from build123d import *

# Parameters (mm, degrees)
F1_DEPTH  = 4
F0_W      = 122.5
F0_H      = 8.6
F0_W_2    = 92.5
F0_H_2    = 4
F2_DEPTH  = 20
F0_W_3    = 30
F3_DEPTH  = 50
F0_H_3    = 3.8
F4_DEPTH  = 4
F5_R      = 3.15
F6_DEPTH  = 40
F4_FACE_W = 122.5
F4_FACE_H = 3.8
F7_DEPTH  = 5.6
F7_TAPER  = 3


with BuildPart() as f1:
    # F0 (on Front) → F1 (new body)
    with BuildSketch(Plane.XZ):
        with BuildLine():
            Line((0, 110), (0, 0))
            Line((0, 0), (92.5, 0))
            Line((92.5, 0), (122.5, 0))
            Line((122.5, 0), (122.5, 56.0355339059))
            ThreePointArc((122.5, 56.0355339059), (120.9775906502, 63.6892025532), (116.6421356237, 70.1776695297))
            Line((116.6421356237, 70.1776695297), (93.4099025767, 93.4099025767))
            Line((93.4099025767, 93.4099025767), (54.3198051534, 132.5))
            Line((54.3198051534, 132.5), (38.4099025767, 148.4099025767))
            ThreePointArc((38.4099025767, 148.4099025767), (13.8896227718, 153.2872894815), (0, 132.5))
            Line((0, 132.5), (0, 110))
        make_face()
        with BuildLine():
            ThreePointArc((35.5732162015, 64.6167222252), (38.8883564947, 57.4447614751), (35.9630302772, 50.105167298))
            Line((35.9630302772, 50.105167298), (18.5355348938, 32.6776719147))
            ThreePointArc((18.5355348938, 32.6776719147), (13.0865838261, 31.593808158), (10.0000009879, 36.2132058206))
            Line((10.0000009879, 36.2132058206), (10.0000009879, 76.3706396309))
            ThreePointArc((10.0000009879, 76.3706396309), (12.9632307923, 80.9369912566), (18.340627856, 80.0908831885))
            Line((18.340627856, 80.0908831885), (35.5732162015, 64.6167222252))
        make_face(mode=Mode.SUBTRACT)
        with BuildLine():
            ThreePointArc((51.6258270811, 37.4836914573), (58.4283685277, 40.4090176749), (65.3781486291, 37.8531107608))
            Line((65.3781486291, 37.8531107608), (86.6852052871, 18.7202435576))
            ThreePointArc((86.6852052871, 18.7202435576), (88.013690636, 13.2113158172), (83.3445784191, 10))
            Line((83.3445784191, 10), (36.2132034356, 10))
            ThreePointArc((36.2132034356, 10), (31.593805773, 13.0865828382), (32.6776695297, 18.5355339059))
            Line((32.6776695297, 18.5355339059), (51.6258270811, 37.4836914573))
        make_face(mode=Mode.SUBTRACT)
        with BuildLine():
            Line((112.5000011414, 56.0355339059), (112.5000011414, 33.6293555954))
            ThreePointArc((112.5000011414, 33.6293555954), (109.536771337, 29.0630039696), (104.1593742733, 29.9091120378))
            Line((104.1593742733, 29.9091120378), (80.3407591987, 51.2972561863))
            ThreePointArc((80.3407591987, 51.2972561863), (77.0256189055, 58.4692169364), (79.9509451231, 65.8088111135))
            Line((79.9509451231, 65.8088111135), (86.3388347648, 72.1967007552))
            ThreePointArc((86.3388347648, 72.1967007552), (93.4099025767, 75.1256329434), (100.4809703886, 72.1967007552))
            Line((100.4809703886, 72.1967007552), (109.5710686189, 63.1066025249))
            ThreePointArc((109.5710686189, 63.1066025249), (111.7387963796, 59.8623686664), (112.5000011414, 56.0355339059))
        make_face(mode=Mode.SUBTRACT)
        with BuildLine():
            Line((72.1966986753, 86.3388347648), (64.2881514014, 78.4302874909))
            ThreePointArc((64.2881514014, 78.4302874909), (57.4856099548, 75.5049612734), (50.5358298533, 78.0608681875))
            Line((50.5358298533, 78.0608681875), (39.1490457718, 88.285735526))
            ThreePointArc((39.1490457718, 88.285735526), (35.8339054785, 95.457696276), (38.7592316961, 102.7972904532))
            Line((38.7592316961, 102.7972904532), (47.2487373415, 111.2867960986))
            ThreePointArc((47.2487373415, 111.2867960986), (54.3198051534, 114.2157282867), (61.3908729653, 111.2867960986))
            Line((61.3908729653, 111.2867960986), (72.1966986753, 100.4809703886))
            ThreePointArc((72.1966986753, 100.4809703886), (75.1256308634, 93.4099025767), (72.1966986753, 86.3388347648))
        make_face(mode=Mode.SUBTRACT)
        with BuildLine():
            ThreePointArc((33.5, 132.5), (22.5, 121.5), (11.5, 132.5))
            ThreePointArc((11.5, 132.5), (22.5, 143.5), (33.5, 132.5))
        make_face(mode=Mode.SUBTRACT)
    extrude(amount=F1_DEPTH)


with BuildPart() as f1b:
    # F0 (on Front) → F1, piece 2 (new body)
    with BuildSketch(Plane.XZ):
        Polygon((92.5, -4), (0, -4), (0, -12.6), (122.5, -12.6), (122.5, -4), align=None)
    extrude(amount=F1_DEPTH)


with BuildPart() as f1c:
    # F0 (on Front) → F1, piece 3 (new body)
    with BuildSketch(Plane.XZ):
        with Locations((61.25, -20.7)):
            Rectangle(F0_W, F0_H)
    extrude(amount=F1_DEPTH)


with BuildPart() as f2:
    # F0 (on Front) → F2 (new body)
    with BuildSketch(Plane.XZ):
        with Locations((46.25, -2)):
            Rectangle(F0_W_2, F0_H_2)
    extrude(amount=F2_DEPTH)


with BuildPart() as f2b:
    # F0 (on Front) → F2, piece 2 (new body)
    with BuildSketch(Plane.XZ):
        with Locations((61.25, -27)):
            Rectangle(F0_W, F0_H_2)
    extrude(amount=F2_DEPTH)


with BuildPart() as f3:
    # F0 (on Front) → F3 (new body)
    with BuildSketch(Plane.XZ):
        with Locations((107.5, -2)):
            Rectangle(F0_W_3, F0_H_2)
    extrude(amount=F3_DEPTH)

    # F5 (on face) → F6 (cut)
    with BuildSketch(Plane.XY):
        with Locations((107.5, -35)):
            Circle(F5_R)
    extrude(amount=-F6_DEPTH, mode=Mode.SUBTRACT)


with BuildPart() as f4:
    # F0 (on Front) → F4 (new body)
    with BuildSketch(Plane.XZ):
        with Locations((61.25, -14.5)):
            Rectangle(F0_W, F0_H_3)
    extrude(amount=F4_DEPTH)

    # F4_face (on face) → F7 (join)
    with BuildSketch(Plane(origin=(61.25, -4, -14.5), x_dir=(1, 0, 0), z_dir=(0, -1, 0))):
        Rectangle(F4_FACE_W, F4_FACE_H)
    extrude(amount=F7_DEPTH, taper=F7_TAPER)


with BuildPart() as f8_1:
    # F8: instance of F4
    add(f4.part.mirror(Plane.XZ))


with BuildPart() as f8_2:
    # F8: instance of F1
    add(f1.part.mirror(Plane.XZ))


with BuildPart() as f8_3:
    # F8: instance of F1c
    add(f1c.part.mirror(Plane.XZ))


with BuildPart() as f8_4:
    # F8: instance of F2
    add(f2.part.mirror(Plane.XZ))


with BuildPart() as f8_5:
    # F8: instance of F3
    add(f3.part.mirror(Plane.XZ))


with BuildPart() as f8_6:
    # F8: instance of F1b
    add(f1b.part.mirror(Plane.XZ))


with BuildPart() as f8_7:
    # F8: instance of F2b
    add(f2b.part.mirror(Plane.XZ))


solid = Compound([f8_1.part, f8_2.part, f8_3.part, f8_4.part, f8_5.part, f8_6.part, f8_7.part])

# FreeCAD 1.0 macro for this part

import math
import FreeCAD as App
import Part
import Sketcher
Q = App.Units.Quantity


def add_polygon(sketch, points):
    """Adds a closed chain of lines whose ends are joined by coincident constraints."""
    first, n = sketch.GeometryCount, len(points)
    for a, b in zip(points, points[1:] + points[:1]):
        sketch.addGeometry(Part.LineSegment(App.Vector(*a, 0), App.Vector(*b, 0)), False)
    for i in range(n):
        sketch.addConstraint(Sketcher.Constraint("Coincident", first + i, 2, first + (i + 1) % n, 1))

doc = App.newDocument("Part")
body = doc.addObject("PartDesign::Body", "Body")

# Sketch on XZ plane
sketch1 = doc.addObject("Sketcher::SketchObject", "Sketch")
body.addObject(sketch1)
sketch1.AttachmentSupport = (doc.XZ_Plane, [""])
sketch1.MapMode = "FlatFace"
sketch1.addGeometry([
    Part.LineSegment(App.Vector(0, 0, 0), App.Vector(122, 0, 0)),  # 0
    Part.LineSegment(App.Vector(122, 0, 0), App.Vector(122, 56, 0)),  # 1
    Part.ArcOfCircle(Part.Circle(App.Vector(102, 56, 0), App.Vector(0, 0, 1), 20), math.radians(0), math.radians(45)),  # 2
    Part.LineSegment(App.Vector(117, 70, 0), App.Vector(38, 148, 0)),  # 3
    Part.ArcOfCircle(Part.Circle(App.Vector(22, 132, 0), App.Vector(0, 0, 1), 22), math.radians(45), math.radians(180)),  # 4
    Part.LineSegment(App.Vector(0, 132, 0), App.Vector(0, 0, 0)),  # 5
    Part.LineSegment(App.Vector(33, 19, 0), App.Vector(52, 37, 0)),  # 6
    Part.ArcOfCircle(Part.Circle(App.Vector(59, 30, 0), App.Vector(0, 0, 1), 10), math.radians(48), math.radians(135)),  # 7
    Part.LineSegment(App.Vector(65, 38, 0), App.Vector(87, 19, 0)),  # 8
    Part.ArcOfCircle(Part.Circle(App.Vector(83, 15, 0), App.Vector(0, 0, 1), 5), math.radians(-90), math.radians(48)),  # 9
    Part.LineSegment(App.Vector(83, 10, 0), App.Vector(36, 10, 0)),  # 10
    Part.ArcOfCircle(Part.Circle(App.Vector(36, 15, 0), App.Vector(0, 0, 1), 5), math.radians(135), math.radians(270)),  # 11
    Part.LineSegment(App.Vector(18, 80, 0), App.Vector(36, 65, 0)),  # 12
    Part.ArcOfCircle(Part.Circle(App.Vector(29, 57, 0), App.Vector(0, 0, 1), 10), math.radians(-45), math.radians(48)),  # 13
    Part.LineSegment(App.Vector(36, 50, 0), App.Vector(19, 33, 0)),  # 14
    Part.ArcOfCircle(Part.Circle(App.Vector(15, 36, 0), App.Vector(0, 0, 1), 5), math.radians(180), math.radians(315)),  # 15
    Part.LineSegment(App.Vector(10, 36, 0), App.Vector(10, 76, 0)),  # 16
    Part.ArcOfCircle(Part.Circle(App.Vector(15, 76, 0), App.Vector(0, 0, 1), 5), math.radians(48), math.radians(180)),  # 17
    Part.ArcOfCircle(Part.Circle(App.Vector(102, 56, 0), App.Vector(0, 0, 1), 10), math.radians(0), math.radians(45)),  # 18
    Part.LineSegment(App.Vector(113, 56, 0), App.Vector(113, 34, 0)),  # 19
    Part.ArcOfCircle(Part.Circle(App.Vector(108, 34, 0), App.Vector(0, 0, 1), 5), math.radians(-132), math.radians(0)),  # 20
    Part.LineSegment(App.Vector(104, 30, 0), App.Vector(80, 51, 0)),  # 21
    Part.ArcOfCircle(Part.Circle(App.Vector(87, 59, 0), App.Vector(0, 0, 1), 10), math.radians(135), math.radians(228)),  # 22
    Part.LineSegment(App.Vector(80, 66, 0), App.Vector(86, 72, 0)),  # 23
    Part.ArcOfCircle(Part.Circle(App.Vector(93, 65, 0), App.Vector(0, 0, 1), 10), math.radians(45), math.radians(135)),  # 24
    Part.LineSegment(App.Vector(100, 72, 0), App.Vector(110, 63, 0)),  # 25
    Part.ArcOfCircle(Part.Circle(App.Vector(65, 93, 0), App.Vector(0, 0, 1), 10), math.radians(-45), math.radians(45)),  # 26
    Part.LineSegment(App.Vector(72, 86, 0), App.Vector(64, 78, 0)),  # 27
    Part.ArcOfCircle(Part.Circle(App.Vector(57, 86, 0), App.Vector(0, 0, 1), 10), math.radians(-132), math.radians(-45)),  # 28
    Part.LineSegment(App.Vector(51, 78, 0), App.Vector(39, 88, 0)),  # 29
    Part.ArcOfCircle(Part.Circle(App.Vector(46, 96, 0), App.Vector(0, 0, 1), 10), math.radians(135), math.radians(228)),  # 30
    Part.LineSegment(App.Vector(39, 103, 0), App.Vector(47, 111, 0)),  # 31
    Part.ArcOfCircle(Part.Circle(App.Vector(54, 104, 0), App.Vector(0, 0, 1), 10), math.radians(45), math.radians(135)),  # 32
    Part.LineSegment(App.Vector(61, 111, 0), App.Vector(72, 100, 0)),  # 33
    Part.Circle(App.Vector(22, 132, 0), App.Vector(0, 0, 1), 11),  # 34
], False)
sketch1.addConstraint([
    Sketcher.Constraint("Coincident", 0, 2, 1, 1),
    Sketcher.Constraint("Tangent", 1, 2, 2, 1),
    Sketcher.Constraint("Tangent", 2, 2, 3, 1),
    Sketcher.Constraint("Tangent", 3, 2, 4, 1),
    Sketcher.Constraint("Tangent", 4, 2, 5, 1),
    Sketcher.Constraint("Coincident", 5, 2, 0, 1),
    Sketcher.Constraint("Tangent", 6, 2, 7, 2),
    Sketcher.Constraint("Tangent", 7, 1, 8, 1),
    Sketcher.Constraint("Tangent", 8, 2, 9, 2),
    Sketcher.Constraint("Tangent", 9, 1, 10, 1),
    Sketcher.Constraint("Tangent", 10, 2, 11, 2),
    Sketcher.Constraint("Tangent", 11, 1, 6, 1),
    Sketcher.Constraint("Tangent", 12, 2, 13, 2),
    Sketcher.Constraint("Tangent", 13, 1, 14, 1),
    Sketcher.Constraint("Tangent", 14, 2, 15, 2),
    Sketcher.Constraint("Tangent", 15, 1, 16, 1),
    Sketcher.Constraint("Tangent", 16, 2, 17, 2),
    Sketcher.Constraint("Tangent", 17, 1, 12, 1),
    Sketcher.Constraint("Tangent", 18, 1, 19, 1),
    Sketcher.Constraint("Tangent", 19, 2, 20, 2),
    Sketcher.Constraint("Tangent", 20, 1, 21, 1),
    Sketcher.Constraint("Tangent", 21, 2, 22, 2),
    Sketcher.Constraint("Tangent", 22, 1, 23, 1),
    Sketcher.Constraint("Tangent", 23, 2, 24, 2),
    Sketcher.Constraint("Tangent", 24, 1, 25, 1),
    Sketcher.Constraint("Tangent", 25, 2, 18, 2),
    Sketcher.Constraint("Tangent", 26, 1, 27, 1),
    Sketcher.Constraint("Tangent", 27, 2, 28, 2),
    Sketcher.Constraint("Tangent", 28, 1, 29, 1),
    Sketcher.Constraint("Tangent", 29, 2, 30, 2),
    Sketcher.Constraint("Tangent", 30, 1, 31, 1),
    Sketcher.Constraint("Tangent", 31, 2, 32, 2),
    Sketcher.Constraint("Tangent", 32, 1, 33, 1),
    Sketcher.Constraint("Tangent", 33, 2, 26, 2),
    Sketcher.Constraint("Horizontal", 0),
    Sketcher.Constraint("Vertical", 1),
    Sketcher.Constraint("Vertical", 5),
    Sketcher.Constraint("Horizontal", 10),
    Sketcher.Constraint("Vertical", 16),
    Sketcher.Constraint("Vertical", 19),
    Sketcher.Constraint("Coincident", 5, 2, -1, 1),
    Sketcher.Constraint("Coincident", 18, 3, 2, 3),
    Sketcher.Constraint("Coincident", 34, 3, 4, 3),
    Sketcher.Constraint("Equal", 9, 11),
    Sketcher.Constraint("Equal", 7, 13),
    Sketcher.Constraint("Equal", 11, 15),
    Sketcher.Constraint("Equal", 15, 17),
    Sketcher.Constraint("Equal", 13, 18),
    Sketcher.Constraint("Equal", 17, 20),
    Sketcher.Constraint("Equal", 18, 22),
    Sketcher.Constraint("Equal", 22, 24),
    Sketcher.Constraint("Equal", 24, 26),
    Sketcher.Constraint("Equal", 26, 28),
    Sketcher.Constraint("Equal", 28, 30),
    Sketcher.Constraint("Equal", 30, 32),
    Sketcher.Constraint("Perpendicular", 3, 6),
    Sketcher.Constraint("Parallel", 8, 12),
    Sketcher.Constraint("Parallel", 6, 14),
    Sketcher.Constraint("Parallel", 12, 21),
    Sketcher.Constraint("Parallel", 14, 23),
    Sketcher.Constraint("Perpendicular", 23, 25),
    Sketcher.Constraint("Perpendicular", 25, 27),
    Sketcher.Constraint("Parallel", 21, 29),
    Sketcher.Constraint("Parallel", 27, 31),
    Sketcher.Constraint("Perpendicular", 31, 33),
    Sketcher.Constraint("Horizontal", 23, 2, 24, 1),
    Sketcher.Constraint("Diameter", 34, Q("22 mm")),
    Sketcher.Constraint("Radius", 2, Q("20 mm")),
    Sketcher.Constraint("Radius", 7, Q("10 mm")),
    Sketcher.Constraint("Radius", 9, Q("5 mm")),
    Sketcher.Constraint("Radius", 4, Q("22.5 mm")),
    Sketcher.Constraint("DistanceX", 0, 1, 0, 2, Q("122.5 mm")),
    Sketcher.Constraint("DistanceY", 5, 2, 5, 1, Q("132.5 mm")),
    Sketcher.Constraint("DistanceY", -1, 1, 9, 3, Q("15 mm")),
    Sketcher.Constraint("DistanceX", -1, 1, 15, 3, Q("15.000001 mm")),
    Sketcher.Constraint("DistanceY", 26, 3, 3, 2, Q("55 mm")),
    Sketcher.Constraint("Distance", 14, Q("24.6462 mm")),
    Sketcher.Constraint("DistanceY", 19, 2, 19, 1, Q("22.406178 mm")),
    Sketcher.Constraint("DistanceX", -1, 1, 30, 3, Q("45.8303 mm")),
    Sketcher.Constraint("DistanceY", -1, 1, 23, 2, Q("72.196701 mm")),
    Sketcher.Constraint("DistanceX", -1, 1, 26, 1, Q("72.196699 mm")),
    Sketcher.Constraint("DistanceY", 2, 3, 13, 3, Q("1.140701 mm")),
    Sketcher.Constraint("DistanceY", 12, 2, 30, 3, Q("31.1095 mm")),
    Sketcher.Constraint("DistanceX", 28, 1, 26, 3, Q("14.589801 mm")),
    Sketcher.Constraint("Distance", 6, Q("26.796741 mm")),
    Sketcher.Constraint("DistanceX", -1, 1, 9, 3, Q("83.344578 mm")),
])
pad1 = doc.addObject("PartDesign::Pad", "Pad")
body.addObject(pad1)
pad1.Profile = sketch1
pad1.Length = 4
body2 = doc.addObject("PartDesign::Body", "Body001")

# Sketch on XZ plane
sketch2 = doc.addObject("Sketcher::SketchObject", "Sketch001")
body2.addObject(sketch2)
sketch2.AttachmentSupport = (doc.getObject("XZ_Plane001"), [""])
sketch2.MapMode = "FlatFace"
add_polygon(sketch2, [(0, -4), (0, -13), (122, -13), (122, -4)])  # lines 0-3
sketch2.addConstraint([
    Sketcher.Constraint("Vertical", 0),
    Sketcher.Constraint("Horizontal", 1),
    Sketcher.Constraint("Vertical", 2),
    Sketcher.Constraint("Horizontal", 3),
    Sketcher.Constraint("PointOnObject", 0, 2, -2),
    Sketcher.Constraint("DistanceX", 1, 1, 1, 2, Q("122.5 mm")),
    Sketcher.Constraint("DistanceY", 0, 2, 0, 1, Q("8.6 mm")),
    Sketcher.Constraint("DistanceY", 2, 2, -1, 1, Q("4 mm")),
])
pad2 = doc.addObject("PartDesign::Pad", "Pad001")
body2.addObject(pad2)
pad2.Profile = sketch2
pad2.Length = 4
body3 = doc.addObject("PartDesign::Body", "Body002")

# Sketch on XZ plane
sketch3 = doc.addObject("Sketcher::SketchObject", "Sketch002")
body3.addObject(sketch3)
sketch3.AttachmentSupport = (doc.getObject("XZ_Plane002"), [""])
sketch3.MapMode = "FlatFace"
add_polygon(sketch3, [(0, -16), (0, -25), (122, -25), (122, -16)])  # lines 0-3
sketch3.addConstraint([
    Sketcher.Constraint("Vertical", 0),
    Sketcher.Constraint("Horizontal", 1),
    Sketcher.Constraint("Vertical", 2),
    Sketcher.Constraint("Horizontal", 3),
    Sketcher.Constraint("PointOnObject", 0, 2, -2),
    Sketcher.Constraint("DistanceX", 1, 1, 1, 2, Q("122.5 mm")),
    Sketcher.Constraint("DistanceY", 0, 2, 0, 1, Q("8.6 mm")),
    Sketcher.Constraint("DistanceY", 0, 2, -1, 1, Q("25 mm")),
])
pad3 = doc.addObject("PartDesign::Pad", "Pad002")
body3.addObject(pad3)
pad3.Profile = sketch3
pad3.Length = 4
body4 = doc.addObject("PartDesign::Body", "Body003")

# Sketch on XZ plane
sketch4 = doc.addObject("Sketcher::SketchObject", "Sketch003")
body4.addObject(sketch4)
sketch4.AttachmentSupport = (doc.getObject("XZ_Plane003"), [""])
sketch4.MapMode = "FlatFace"
add_polygon(sketch4, [(0, 0), (0, -4), (92.5, -4), (92.5, 0)])  # lines 0-3
sketch4.addConstraint([
    Sketcher.Constraint("Vertical", 0),
    Sketcher.Constraint("Horizontal", 1),
    Sketcher.Constraint("Vertical", 2),
    Sketcher.Constraint("Horizontal", 3),
    Sketcher.Constraint("Coincident", 3, 2, -1, 1),
    Sketcher.Constraint("DistanceY", 0, 2, 0, 1, Q("4 mm")),
    Sketcher.Constraint("DistanceX", 1, 1, 1, 2, Q("92.5 mm")),
])
pad4 = doc.addObject("PartDesign::Pad", "Pad003")
body4.addObject(pad4)
pad4.Profile = sketch4
pad4.Length = 20
body5 = doc.addObject("PartDesign::Body", "Body004")

# Sketch on XZ plane
sketch5 = doc.addObject("Sketcher::SketchObject", "Sketch004")
body5.addObject(sketch5)
sketch5.AttachmentSupport = (doc.getObject("XZ_Plane004"), [""])
sketch5.MapMode = "FlatFace"
add_polygon(sketch5, [(0, -25), (0, -29), (122.5, -29), (122.5, -25)])  # lines 0-3
sketch5.addConstraint([
    Sketcher.Constraint("Vertical", 0),
    Sketcher.Constraint("Horizontal", 1),
    Sketcher.Constraint("Vertical", 2),
    Sketcher.Constraint("Horizontal", 3),
    Sketcher.Constraint("PointOnObject", 0, 2, -2),
    Sketcher.Constraint("DistanceY", 0, 2, 0, 1, Q("4 mm")),
    Sketcher.Constraint("DistanceX", 1, 1, 1, 2, Q("122.5 mm")),
    Sketcher.Constraint("DistanceY", 0, 2, -1, 1, Q("29 mm")),
])
pad5 = doc.addObject("PartDesign::Pad", "Pad004")
body5.addObject(pad5)
pad5.Profile = sketch5
pad5.Length = 20
body6 = doc.addObject("PartDesign::Body", "Body005")

# Sketch on XZ plane
sketch6 = doc.addObject("Sketcher::SketchObject", "Sketch005")
body6.addObject(sketch6)
sketch6.AttachmentSupport = (doc.getObject("XZ_Plane005"), [""])
sketch6.MapMode = "FlatFace"
add_polygon(sketch6, [(92.5, 0), (92.5, -4), (122.5, -4), (122.5, 0)])  # lines 0-3
sketch6.addConstraint([
    Sketcher.Constraint("Vertical", 0),
    Sketcher.Constraint("Horizontal", 1),
    Sketcher.Constraint("Vertical", 2),
    Sketcher.Constraint("Horizontal", 3),
    Sketcher.Constraint("PointOnObject", 2, 2, -1),
    Sketcher.Constraint("DistanceX", 1, 1, 1, 2, Q("30 mm")),
    Sketcher.Constraint("DistanceY", 0, 2, 0, 1, Q("4 mm")),
    Sketcher.Constraint("DistanceX", -1, 1, 0, 2, Q("92.5 mm")),
])
pad6 = doc.addObject("PartDesign::Pad", "Pad005")
body6.addObject(pad6)
pad6.Profile = sketch6
pad6.Length = 50

# Sketch on XY plane
sketch7 = doc.addObject("Sketcher::SketchObject", "Sketch006")
body6.addObject(sketch7)
sketch7.AttachmentSupport = (doc.getObject("XY_Plane005"), [""])
sketch7.MapMode = "FlatFace"
sketch7.addGeometry(Part.Circle(App.Vector(107.5, -35, 0), App.Vector(0, 0, 1), 3.1), False)
sketch7.addConstraint([
    Sketcher.Constraint("Diameter", 0, Q("6.3 mm")),
    Sketcher.Constraint("DistanceY", 0, 3, -1, 1, Q("35 mm")),
    Sketcher.Constraint("DistanceX", -1, 1, 0, 3, Q("107.5 mm")),
])
pocket1 = doc.addObject("PartDesign::Pocket", "Pocket")
body6.addObject(pocket1)
pocket1.Profile = sketch7
pocket1.Length = 40
body7 = doc.addObject("PartDesign::Body", "Body006")

# Sketch on XZ plane
sketch8 = doc.addObject("Sketcher::SketchObject", "Sketch007")
body7.addObject(sketch8)
sketch8.AttachmentSupport = (doc.getObject("XZ_Plane006"), [""])
sketch8.MapMode = "FlatFace"
add_polygon(sketch8, [(0, -12.6), (0, -16.4), (122.5, -16.4), (122.5, -12.6)])  # lines 0-3
sketch8.addConstraint([
    Sketcher.Constraint("Vertical", 0),
    Sketcher.Constraint("Horizontal", 1),
    Sketcher.Constraint("Vertical", 2),
    Sketcher.Constraint("Horizontal", 3),
    Sketcher.Constraint("PointOnObject", 0, 2, -2),
    Sketcher.Constraint("DistanceX", 1, 1, 1, 2, Q("122.5 mm")),
    Sketcher.Constraint("DistanceY", 0, 2, 0, 1, Q("3.8 mm")),
    Sketcher.Constraint("DistanceY", 0, 2, -1, 1, Q("16.4 mm")),
])
pad7 = doc.addObject("PartDesign::Pad", "Pad006")
body7.addObject(pad7)
pad7.Profile = sketch8
pad7.Length = 4

# Sketch on XZ plane
sketch9 = doc.addObject("Sketcher::SketchObject", "Sketch008")
body7.addObject(sketch9)
sketch9.AttachmentSupport = (doc.getObject("XZ_Plane006"), [""])
sketch9.MapMode = "FlatFace"
sketch9.AttachmentOffset = App.Placement(App.Vector(0, 0, 4), App.Rotation())
add_polygon(sketch9, [(0, -12.6), (0, -16.4), (122.5, -16.4), (122.5, -12.6)])  # lines 0-3
sketch9.addConstraint([
    Sketcher.Constraint("Vertical", 0),
    Sketcher.Constraint("Horizontal", 1),
    Sketcher.Constraint("Vertical", 2),
    Sketcher.Constraint("Horizontal", 3),
    Sketcher.Constraint("PointOnObject", 0, 2, -2),
    Sketcher.Constraint("DistanceX", 1, 1, 1, 2, Q("122.5 mm")),
    Sketcher.Constraint("DistanceY", 0, 2, 0, 1, Q("3.8 mm")),
    Sketcher.Constraint("DistanceY", 0, 2, -1, 1, Q("16.4 mm")),
])
pad8 = doc.addObject("PartDesign::Pad", "Pad007")
body7.addObject(pad8)
pad8.Profile = sketch9
pad8.Length = 5.6
pad8.TaperAngle = -3
body8 = doc.addObject("PartDesign::Body", "Body007")
doc.recompute()

mirroring = doc.addObject("Part::Mirroring", "Mirroring")
mirroring.Source = body7
mirroring.Base = App.Vector(0, 0, 0)
mirroring.Normal = App.Vector(0, -1, 0)
body8.BaseFeature = mirroring
doc.recompute()
body9 = doc.addObject("PartDesign::Body", "Body008")
doc.recompute()

mirroring2 = doc.addObject("Part::Mirroring", "Mirroring001")
mirroring2.Source = body
mirroring2.Base = App.Vector(0, 0, 0)
mirroring2.Normal = App.Vector(0, -1, 0)
body9.BaseFeature = mirroring2
doc.recompute()
body10 = doc.addObject("PartDesign::Body", "Body009")
doc.recompute()

mirroring3 = doc.addObject("Part::Mirroring", "Mirroring002")
mirroring3.Source = body3
mirroring3.Base = App.Vector(0, 0, 0)
mirroring3.Normal = App.Vector(0, -1, 0)
body10.BaseFeature = mirroring3
doc.recompute()
body11 = doc.addObject("PartDesign::Body", "Body010")
doc.recompute()

mirroring4 = doc.addObject("Part::Mirroring", "Mirroring003")
mirroring4.Source = body4
mirroring4.Base = App.Vector(0, 0, 0)
mirroring4.Normal = App.Vector(0, -1, 0)
body11.BaseFeature = mirroring4
doc.recompute()
body12 = doc.addObject("PartDesign::Body", "Body011")
doc.recompute()

mirroring5 = doc.addObject("Part::Mirroring", "Mirroring004")
mirroring5.Source = body6
mirroring5.Base = App.Vector(0, 0, 0)
mirroring5.Normal = App.Vector(0, -1, 0)
body12.BaseFeature = mirroring5
doc.recompute()
body13 = doc.addObject("PartDesign::Body", "Body012")
doc.recompute()

mirroring6 = doc.addObject("Part::Mirroring", "Mirroring005")
mirroring6.Source = body2
mirroring6.Base = App.Vector(0, 0, 0)
mirroring6.Normal = App.Vector(0, -1, 0)
body13.BaseFeature = mirroring6
doc.recompute()
body14 = doc.addObject("PartDesign::Body", "Body013")
doc.recompute()

mirroring7 = doc.addObject("Part::Mirroring", "Mirroring006")
mirroring7.Source = body5
mirroring7.Base = App.Vector(0, 0, 0)
mirroring7.Normal = App.Vector(0, -1, 0)
body14.BaseFeature = mirroring7
doc.recompute()
body.Visibility = False
body2.Visibility = False
body3.Visibility = False
body4.Visibility = False
body5.Visibility = False
body6.Visibility = False
body7.Visibility = False
mirroring.Visibility = False
mirroring2.Visibility = False
mirroring3.Visibility = False
mirroring4.Visibility = False
mirroring5.Visibility = False
mirroring6.Visibility = False
mirroring7.Visibility = False

doc.recompute()
